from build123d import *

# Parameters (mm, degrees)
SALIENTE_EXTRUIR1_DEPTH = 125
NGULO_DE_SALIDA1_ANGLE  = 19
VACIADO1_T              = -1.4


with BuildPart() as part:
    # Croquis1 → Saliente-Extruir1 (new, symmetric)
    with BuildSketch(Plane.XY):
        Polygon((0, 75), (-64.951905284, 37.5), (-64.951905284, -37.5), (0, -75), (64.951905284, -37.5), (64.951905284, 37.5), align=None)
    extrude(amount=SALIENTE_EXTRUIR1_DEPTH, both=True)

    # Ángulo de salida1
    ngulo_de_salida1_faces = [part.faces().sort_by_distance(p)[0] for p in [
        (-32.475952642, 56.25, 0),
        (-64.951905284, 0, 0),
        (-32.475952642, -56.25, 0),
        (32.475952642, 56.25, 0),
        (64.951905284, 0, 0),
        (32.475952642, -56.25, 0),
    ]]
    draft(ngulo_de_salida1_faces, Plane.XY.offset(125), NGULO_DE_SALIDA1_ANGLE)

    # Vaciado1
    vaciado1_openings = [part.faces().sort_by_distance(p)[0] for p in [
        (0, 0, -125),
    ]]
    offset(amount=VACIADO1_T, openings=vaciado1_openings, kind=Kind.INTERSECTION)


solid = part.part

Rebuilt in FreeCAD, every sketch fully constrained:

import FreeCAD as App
import Part
import Sketcher
Q = App.Units.Quantity


def faces_at(feature, points):
    """Names of the faces that lie closest to the given points."""
    faces = feature.Shape.Faces
    near = lambda p: min(range(len(faces)), key=lambda i: faces[i].distToShape(Part.Vertex(*p))[0])
    return sorted({f"Face{near(p) + 1}" for p in points})


def add_polygon(sketch, points):
    """Adds a closed chain of lines whose ends are joined by coincident constraints."""
    first, n = sketch.GeometryCount, len(points)
    for a, b in zip(points, points[1:] + points[:1]):
        sketch.addGeometry(Part.LineSegment(App.Vector(*a, 0), App.Vector(*b, 0)), False)
    for i in range(n):
        sketch.addConstraint(Sketcher.Constraint("Coincident", first + i, 2, first + (i + 1) % n, 1))

doc = App.newDocument("Part")
body = doc.addObject("PartDesign::Body", "Body")

# Sketch on XY plane
sketch1 = body.newObject("Sketcher::SketchObject", "Sketch")
sketch1.AttachmentSupport = (doc.getObject("XY_Plane"), [""])
sketch1.MapMode = "FlatFace"
add_polygon(sketch1, [(0, 75), (-64.951905, 37.5), (-64.951905, -37.5), (0, -75), (64.951905, -37.5), (64.951905, 37.5)])  # lines 0-5
sketch1.addConstraint([
    Sketcher.Constraint("Vertical", 1),
    Sketcher.Constraint("Vertical", 4),
    Sketcher.Constraint("Symmetric", 0, 2, 3, 2, -1, 1),
    Sketcher.Constraint("Symmetric", 2, 2, 5, 2, -1, 1),
    Sketcher.Constraint("PointOnObject", 2, 2, -2),
    Sketcher.Constraint("Parallel", 2, 5),
    Sketcher.Constraint("Horizontal", 1, 2, 3, 2),
    Sketcher.Constraint("DistanceY", 1, 2, 1, 1, Q("75 mm")),
    Sketcher.Constraint("Angle", 0, Q("-150 deg")),
    Sketcher.Constraint("Distance", 0, Q("75 mm")),
])
pad1 = body.newObject("PartDesign::Pad", "Pad")
pad1.Profile = sketch1
pad1.Length = 250
pad1.Midplane = True
doc.recompute()

datumplane = body.newObject("PartDesign::Plane", "DatumPlane")
datumplane.AttachmentSupport = (doc.getObject("XY_Plane"), [""])
datumplane.MapMode = "FlatFace"
datumplane.AttachmentOffset = App.Placement(App.Vector(0, 0, 125), App.Rotation())
draft = body.newObject("PartDesign::Draft", "Draft")
draft.Base = (pad1, faces_at(pad1, [
    (-32.476, 56.25, 0),
    (-64.952, 0, 0),
    (-32.476, -56.25, 0),
    (32.476, 56.25, 0),
    (64.952, 0, 0),
    (32.476, -56.25, 0),
]))
draft.NeutralPlane = (datumplane, [""])
draft.Angle = 19
draft.Reversed = False
doc.recompute()

thickness = body.newObject("PartDesign::Thickness", "Thickness")
thickness.Base = (draft, faces_at(draft, [(0, 0, -125)]))
thickness.Value = 1.4
thickness.Reversed = True
thickness.Join = "Intersection"

doc.recompute()
